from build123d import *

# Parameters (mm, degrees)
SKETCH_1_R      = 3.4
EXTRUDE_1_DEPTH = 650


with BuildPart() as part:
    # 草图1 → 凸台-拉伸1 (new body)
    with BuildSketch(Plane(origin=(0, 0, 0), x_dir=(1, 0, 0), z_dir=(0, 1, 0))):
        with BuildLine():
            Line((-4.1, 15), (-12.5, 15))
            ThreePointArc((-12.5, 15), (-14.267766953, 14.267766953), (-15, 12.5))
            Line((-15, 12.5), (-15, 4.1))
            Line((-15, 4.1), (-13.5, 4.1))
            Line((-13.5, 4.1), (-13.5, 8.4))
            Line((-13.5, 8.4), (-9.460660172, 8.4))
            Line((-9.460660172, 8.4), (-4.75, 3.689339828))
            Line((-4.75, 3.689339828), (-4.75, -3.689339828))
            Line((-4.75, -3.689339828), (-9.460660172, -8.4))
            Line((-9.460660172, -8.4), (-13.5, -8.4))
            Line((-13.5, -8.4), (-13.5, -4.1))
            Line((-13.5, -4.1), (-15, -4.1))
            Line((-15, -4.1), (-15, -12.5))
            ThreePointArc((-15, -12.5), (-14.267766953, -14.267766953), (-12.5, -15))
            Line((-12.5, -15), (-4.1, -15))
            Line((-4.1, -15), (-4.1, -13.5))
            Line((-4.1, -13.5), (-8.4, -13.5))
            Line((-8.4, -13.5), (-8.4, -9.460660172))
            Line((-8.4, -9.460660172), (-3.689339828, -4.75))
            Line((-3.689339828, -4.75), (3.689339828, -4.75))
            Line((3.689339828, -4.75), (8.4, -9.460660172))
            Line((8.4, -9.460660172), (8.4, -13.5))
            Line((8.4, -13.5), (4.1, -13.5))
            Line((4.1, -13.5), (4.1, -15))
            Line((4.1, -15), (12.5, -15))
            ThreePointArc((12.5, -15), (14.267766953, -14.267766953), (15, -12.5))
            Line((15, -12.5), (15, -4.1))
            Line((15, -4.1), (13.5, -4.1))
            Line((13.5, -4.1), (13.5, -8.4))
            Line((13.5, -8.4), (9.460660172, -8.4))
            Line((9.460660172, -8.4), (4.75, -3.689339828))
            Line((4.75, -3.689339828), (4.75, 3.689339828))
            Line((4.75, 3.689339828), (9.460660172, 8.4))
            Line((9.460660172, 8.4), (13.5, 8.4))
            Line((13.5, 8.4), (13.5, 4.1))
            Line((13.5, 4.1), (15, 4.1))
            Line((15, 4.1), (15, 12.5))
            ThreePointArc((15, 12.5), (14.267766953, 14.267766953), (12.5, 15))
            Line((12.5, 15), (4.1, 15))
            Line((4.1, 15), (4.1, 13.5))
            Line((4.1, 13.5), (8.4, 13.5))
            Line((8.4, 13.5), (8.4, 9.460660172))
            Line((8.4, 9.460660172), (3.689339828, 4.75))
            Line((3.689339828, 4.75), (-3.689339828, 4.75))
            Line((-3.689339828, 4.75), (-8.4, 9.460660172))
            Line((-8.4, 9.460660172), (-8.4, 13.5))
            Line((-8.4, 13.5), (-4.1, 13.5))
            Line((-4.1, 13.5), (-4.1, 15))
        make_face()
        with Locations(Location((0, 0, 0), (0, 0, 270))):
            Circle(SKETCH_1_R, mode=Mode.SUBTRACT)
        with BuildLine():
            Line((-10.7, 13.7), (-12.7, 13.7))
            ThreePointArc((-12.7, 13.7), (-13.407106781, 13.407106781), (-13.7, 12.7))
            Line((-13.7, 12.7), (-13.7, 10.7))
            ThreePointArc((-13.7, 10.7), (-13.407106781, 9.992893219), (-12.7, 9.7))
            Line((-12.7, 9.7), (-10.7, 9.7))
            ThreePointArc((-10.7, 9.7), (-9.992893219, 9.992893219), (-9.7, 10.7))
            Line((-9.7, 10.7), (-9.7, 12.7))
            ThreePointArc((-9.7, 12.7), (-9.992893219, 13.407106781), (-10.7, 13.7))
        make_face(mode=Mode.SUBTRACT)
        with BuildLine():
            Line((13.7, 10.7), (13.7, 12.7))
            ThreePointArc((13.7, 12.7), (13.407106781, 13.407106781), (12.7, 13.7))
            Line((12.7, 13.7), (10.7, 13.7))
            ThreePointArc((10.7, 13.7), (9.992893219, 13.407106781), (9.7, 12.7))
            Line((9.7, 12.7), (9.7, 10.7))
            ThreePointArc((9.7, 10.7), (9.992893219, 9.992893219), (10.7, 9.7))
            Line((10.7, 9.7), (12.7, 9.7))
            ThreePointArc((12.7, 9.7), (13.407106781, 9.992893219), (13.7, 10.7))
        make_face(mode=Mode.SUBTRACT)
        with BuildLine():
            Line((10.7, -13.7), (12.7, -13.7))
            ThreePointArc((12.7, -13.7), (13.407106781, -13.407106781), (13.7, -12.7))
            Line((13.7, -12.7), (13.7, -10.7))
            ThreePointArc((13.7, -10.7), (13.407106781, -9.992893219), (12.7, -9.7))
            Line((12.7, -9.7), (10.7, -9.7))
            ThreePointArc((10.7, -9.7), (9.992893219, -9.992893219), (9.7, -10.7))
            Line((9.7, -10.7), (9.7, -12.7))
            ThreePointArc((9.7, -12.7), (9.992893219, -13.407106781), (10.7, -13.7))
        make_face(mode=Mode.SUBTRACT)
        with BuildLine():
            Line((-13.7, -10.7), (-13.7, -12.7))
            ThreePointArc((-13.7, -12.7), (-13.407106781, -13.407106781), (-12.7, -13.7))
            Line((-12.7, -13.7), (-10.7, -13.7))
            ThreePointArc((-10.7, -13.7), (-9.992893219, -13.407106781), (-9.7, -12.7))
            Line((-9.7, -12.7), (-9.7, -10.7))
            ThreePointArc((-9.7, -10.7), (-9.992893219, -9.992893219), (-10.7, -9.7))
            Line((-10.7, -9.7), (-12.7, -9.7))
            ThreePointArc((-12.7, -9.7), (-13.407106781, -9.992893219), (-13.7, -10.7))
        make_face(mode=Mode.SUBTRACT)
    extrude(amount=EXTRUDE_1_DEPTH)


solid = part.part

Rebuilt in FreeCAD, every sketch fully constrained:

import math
import FreeCAD as App
import Part
import Sketcher

V = App.Vector

doc = App.newDocument("Part")
params = doc.addObject("Spreadsheet::Sheet", "Params")
for row, (alias, value) in enumerate([
    ("sketch1_radius", "1 mm"),
    ("sketch1_diameter", "6.8 mm"),
    ("sketch1_radius2", "2.5 mm"),
    ("sketch1_width", "2 mm"),
    ("sketch1_width2", "8.4 mm"),
    ("pad1_length", "650 mm"),
], start=1):
    params.set(f"A{row}", alias)
    params.set(f"B{row}", "=" + value)
    params.setAlias(f"B{row}", alias)

body = doc.addObject("PartDesign::Body", "Body")

# Sketch on XZ plane
sketch1 = doc.addObject("Sketcher::SketchObject", "Sketch")
body.addObject(sketch1)
sketch1.AttachmentSupport = (doc.XZ_Plane, [""])
sketch1.MapMode = "FlatFace"
sketch1.addGeometry(Part.LineSegment(V(-4.1, -15, 0), V(-12.5, -15, 0)), False)
sketch1.addGeometry(Part.ArcOfCircle(Part.Circle(V(-12.5, -12.5, 0), V(0, 0, 1), 2.5), math.radians(180), math.radians(270)), False)
sketch1.addGeometry(Part.LineSegment(V(-15, -12.5, 0), V(-15, -4.1, 0)), False)
sketch1.addGeometry(Part.LineSegment(V(-15, -4.1, 0), V(-13.5, -4.1, 0)), False)
sketch1.addGeometry(Part.LineSegment(V(-13.5, -4.1, 0), V(-13.5, -8.4, 0)), False)
sketch1.addGeometry(Part.LineSegment(V(-13.5, -8.4, 0), V(-9.5, -8.4, 0)), False)
sketch1.addGeometry(Part.LineSegment(V(-9.5, -8.4, 0), V(-4.8, -3.7, 0)), False)
sketch1.addGeometry(Part.LineSegment(V(-4.8, -3.7, 0), V(-4.8, 3.7, 0)), False)
sketch1.addGeometry(Part.LineSegment(V(-4.8, 3.7, 0), V(-9.5, 8.4, 0)), False)
sketch1.addGeometry(Part.LineSegment(V(-9.5, 8.4, 0), V(-13.5, 8.4, 0)), False)
sketch1.addGeometry(Part.LineSegment(V(-13.5, 8.4, 0), V(-13.5, 4.1, 0)), False)
sketch1.addGeometry(Part.LineSegment(V(-13.5, 4.1, 0), V(-15, 4.1, 0)), False)
sketch1.addGeometry(Part.LineSegment(V(-15, 4.1, 0), V(-15, 12.5, 0)), False)
sketch1.addGeometry(Part.ArcOfCircle(Part.Circle(V(-12.5, 12.5, 0), V(0, 0, 1), 2.5), math.radians(90), math.radians(180)), False)
sketch1.addGeometry(Part.LineSegment(V(-12.5, 15, 0), V(-4.1, 15, 0)), False)
sketch1.addGeometry(Part.LineSegment(V(-4.1, 15, 0), V(-4.1, 13.5, 0)), False)
sketch1.addGeometry(Part.LineSegment(V(-4.1, 13.5, 0), V(-8.4, 13.5, 0)), False)
sketch1.addGeometry(Part.LineSegment(V(-8.4, 13.5, 0), V(-8.4, 9.5, 0)), False)
sketch1.addGeometry(Part.LineSegment(V(-8.4, 9.5, 0), V(-3.7, 4.8, 0)), False)
sketch1.addGeometry(Part.LineSegment(V(-3.7, 4.8, 0), V(3.7, 4.8, 0)), False)
sketch1.addGeometry(Part.LineSegment(V(3.7, 4.8, 0), V(8.4, 9.5, 0)), False)
sketch1.addGeometry(Part.LineSegment(V(8.4, 9.5, 0), V(8.4, 13.5, 0)), False)
sketch1.addGeometry(Part.LineSegment(V(8.4, 13.5, 0), V(4.1, 13.5, 0)), False)
sketch1.addGeometry(Part.LineSegment(V(4.1, 13.5, 0), V(4.1, 15, 0)), False)
sketch1.addGeometry(Part.LineSegment(V(4.1, 15, 0), V(12.5, 15, 0)), False)
sketch1.addGeometry(Part.ArcOfCircle(Part.Circle(V(12.5, 12.5, 0), V(0, 0, 1), 2.5), math.radians(0), math.radians(90)), False)
sketch1.addGeometry(Part.LineSegment(V(15, 12.5, 0), V(15, 4.1, 0)), False)
sketch1.addGeometry(Part.LineSegment(V(15, 4.1, 0), V(13.5, 4.1, 0)), False)
sketch1.addGeometry(Part.LineSegment(V(13.5, 4.1, 0), V(13.5, 8.4, 0)), False)
sketch1.addGeometry(Part.LineSegment(V(13.5, 8.4, 0), V(9.5, 8.4, 0)), False)
sketch1.addGeometry(Part.LineSegment(V(9.5, 8.4, 0), V(4.8, 3.7, 0)), False)
sketch1.addGeometry(Part.LineSegment(V(4.8, 3.7, 0), V(4.8, -3.7, 0)), False)
sketch1.addGeometry(Part.LineSegment(V(4.8, -3.7, 0), V(9.5, -8.4, 0)), False)
sketch1.addGeometry(Part.LineSegment(V(9.5, -8.4, 0), V(13.5, -8.4, 0)), False)
sketch1.addGeometry(Part.LineSegment(V(13.5, -8.4, 0), V(13.5, -4.1, 0)), False)
sketch1.addGeometry(Part.LineSegment(V(13.5, -4.1, 0), V(15, -4.1, 0)), False)
sketch1.addGeometry(Part.LineSegment(V(15, -4.1, 0), V(15, -12.5, 0)), False)
sketch1.addGeometry(Part.ArcOfCircle(Part.Circle(V(12.5, -12.5, 0), V(0, 0, 1), 2.5), math.radians(-90), math.radians(0)), False)
sketch1.addGeometry(Part.LineSegment(V(12.5, -15, 0), V(4.1, -15, 0)), False)
sketch1.addGeometry(Part.LineSegment(V(4.1, -15, 0), V(4.1, -13.5, 0)), False)
sketch1.addGeometry(Part.LineSegment(V(4.1, -13.5, 0), V(8.4, -13.5, 0)), False)
sketch1.addGeometry(Part.LineSegment(V(8.4, -13.5, 0), V(8.4, -9.5, 0)), False)
sketch1.addGeometry(Part.LineSegment(V(8.4, -9.5, 0), V(3.7, -4.8, 0)), False)
sketch1.addGeometry(Part.LineSegment(V(3.7, -4.8, 0), V(-3.7, -4.8, 0)), False)
sketch1.addGeometry(Part.LineSegment(V(-3.7, -4.8, 0), V(-8.4, -9.5, 0)), False)
sketch1.addGeometry(Part.LineSegment(V(-8.4, -9.5, 0), V(-8.4, -13.5, 0)), False)
sketch1.addGeometry(Part.LineSegment(V(-8.4, -13.5, 0), V(-4.1, -13.5, 0)), False)
sketch1.addGeometry(Part.LineSegment(V(-4.1, -13.5, 0), V(-4.1, -15, 0)), False)
sketch1.addGeometry(Part.LineSegment(V(-13.7, 12.7, 0), V(-13.7, 10.7, 0)), False)
sketch1.addGeometry(Part.ArcOfCircle(Part.Circle(V(-12.7, 10.7, 0), V(0, 0, 1), 1), math.radians(-180), math.radians(-90)), False)
sketch1.addGeometry(Part.LineSegment(V(-12.7, 9.7, 0), V(-10.7, 9.7, 0)), False)
sketch1.addGeometry(Part.ArcOfCircle(Part.Circle(V(-10.7, 10.7, 0), V(0, 0, 1), 1), math.radians(-90), math.radians(0)), False)
sketch1.addGeometry(Part.LineSegment(V(-9.7, 10.7, 0), V(-9.7, 12.7, 0)), False)
sketch1.addGeometry(Part.ArcOfCircle(Part.Circle(V(-10.7, 12.7, 0), V(0, 0, 1), 1), math.radians(0), math.radians(90)), False)
sketch1.addGeometry(Part.LineSegment(V(-10.7, 13.7, 0), V(-12.7, 13.7, 0)), False)
sketch1.addGeometry(Part.ArcOfCircle(Part.Circle(V(-12.7, 12.7, 0), V(0, 0, 1), 1), math.radians(90), math.radians(180)), False)
sketch1.addGeometry(Part.LineSegment(V(12.7, 13.7, 0), V(10.7, 13.7, 0)), False)
sketch1.addGeometry(Part.ArcOfCircle(Part.Circle(V(10.7, 12.7, 0), V(0, 0, 1), 1), math.radians(90), math.radians(180)), False)
sketch1.addGeometry(Part.LineSegment(V(9.7, 12.7, 0), V(9.7, 10.7, 0)), False)
sketch1.addGeometry(Part.ArcOfCircle(Part.Circle(V(10.7, 10.7, 0), V(0, 0, 1), 1), math.radians(-180), math.radians(-90)), False)
sketch1.addGeometry(Part.LineSegment(V(10.7, 9.7, 0), V(12.7, 9.7, 0)), False)
sketch1.addGeometry(Part.ArcOfCircle(Part.Circle(V(12.7, 10.7, 0), V(0, 0, 1), 1), math.radians(-90), math.radians(0)), False)
sketch1.addGeometry(Part.LineSegment(V(13.7, 10.7, 0), V(13.7, 12.7, 0)), False)
sketch1.addGeometry(Part.ArcOfCircle(Part.Circle(V(12.7, 12.7, 0), V(0, 0, 1), 1), math.radians(0), math.radians(90)), False)
sketch1.addGeometry(Part.LineSegment(V(-12.7, -13.7, 0), V(-10.7, -13.7, 0)), False)
sketch1.addGeometry(Part.ArcOfCircle(Part.Circle(V(-10.7, -12.7, 0), V(0, 0, 1), 1), math.radians(-90), math.radians(0)), False)
sketch1.addGeometry(Part.LineSegment(V(-9.7, -12.7, 0), V(-9.7, -10.7, 0)), False)
sketch1.addGeometry(Part.ArcOfCircle(Part.Circle(V(-10.7, -10.7, 0), V(0, 0, 1), 1), math.radians(0), math.radians(90)), False)
sketch1.addGeometry(Part.LineSegment(V(-10.7, -9.7, 0), V(-12.7, -9.7, 0)), False)
sketch1.addGeometry(Part.ArcOfCircle(Part.Circle(V(-12.7, -10.7, 0), V(0, 0, 1), 1), math.radians(90), math.radians(180)), False)
sketch1.addGeometry(Part.LineSegment(V(-13.7, -10.7, 0), V(-13.7, -12.7, 0)), False)
sketch1.addGeometry(Part.ArcOfCircle(Part.Circle(V(-12.7, -12.7, 0), V(0, 0, 1), 1), math.radians(-180), math.radians(-90)), False)
sketch1.addGeometry(Part.Circle(V(0, 0, 0), V(0, 0, 1), 3.4), False)
sketch1.addGeometry(Part.LineSegment(V(13.7, -12.7, 0), V(13.7, -10.7, 0)), False)
sketch1.addGeometry(Part.ArcOfCircle(Part.Circle(V(12.7, -10.7, 0), V(0, 0, 1), 1), math.radians(0), math.radians(90)), False)
sketch1.addGeometry(Part.LineSegment(V(12.7, -9.7, 0), V(10.7, -9.7, 0)), False)
sketch1.addGeometry(Part.ArcOfCircle(Part.Circle(V(10.7, -10.7, 0), V(0, 0, 1), 1), math.radians(90), math.radians(180)), False)
sketch1.addGeometry(Part.LineSegment(V(9.7, -10.7, 0), V(9.7, -12.7, 0)), False)
sketch1.addGeometry(Part.ArcOfCircle(Part.Circle(V(10.7, -12.7, 0), V(0, 0, 1), 1), math.radians(-180), math.radians(-90)), False)
sketch1.addGeometry(Part.LineSegment(V(10.7, -13.7, 0), V(12.7, -13.7, 0)), False)
sketch1.addGeometry(Part.ArcOfCircle(Part.Circle(V(12.7, -12.7, 0), V(0, 0, 1), 1), math.radians(-90), math.radians(0)), False)
sketch1.addConstraint(Sketcher.Constraint("Tangent", 0, 2, 1, 2))
sketch1.addConstraint(Sketcher.Constraint("Tangent", 1, 1, 2, 1))
sketch1.addConstraint(Sketcher.Constraint("Coincident", 2, 2, 3, 1))
sketch1.addConstraint(Sketcher.Constraint("Coincident", 3, 2, 4, 1))
sketch1.addConstraint(Sketcher.Constraint("Coincident", 4, 2, 5, 1))
sketch1.addConstraint(Sketcher.Constraint("Coincident", 5, 2, 6, 1))
sketch1.addConstraint(Sketcher.Constraint("Coincident", 6, 2, 7, 1))
sketch1.addConstraint(Sketcher.Constraint("Coincident", 7, 2, 8, 1))
sketch1.addConstraint(Sketcher.Constraint("Coincident", 8, 2, 9, 1))
sketch1.addConstraint(Sketcher.Constraint("Coincident", 9, 2, 10, 1))
sketch1.addConstraint(Sketcher.Constraint("Coincident", 10, 2, 11, 1))
sketch1.addConstraint(Sketcher.Constraint("Coincident", 11, 2, 12, 1))
sketch1.addConstraint(Sketcher.Constraint("Tangent", 12, 2, 13, 2))
sketch1.addConstraint(Sketcher.Constraint("Tangent", 13, 1, 14, 1))
sketch1.addConstraint(Sketcher.Constraint("Coincident", 14, 2, 15, 1))
sketch1.addConstraint(Sketcher.Constraint("Coincident", 15, 2, 16, 1))
sketch1.addConstraint(Sketcher.Constraint("Coincident", 16, 2, 17, 1))
sketch1.addConstraint(Sketcher.Constraint("Coincident", 17, 2, 18, 1))
sketch1.addConstraint(Sketcher.Constraint("Coincident", 18, 2, 19, 1))
sketch1.addConstraint(Sketcher.Constraint("Coincident", 19, 2, 20, 1))
sketch1.addConstraint(Sketcher.Constraint("Coincident", 20, 2, 21, 1))
sketch1.addConstraint(Sketcher.Constraint("Coincident", 21, 2, 22, 1))
sketch1.addConstraint(Sketcher.Constraint("Coincident", 22, 2, 23, 1))
sketch1.addConstraint(Sketcher.Constraint("Coincident", 23, 2, 24, 1))
sketch1.addConstraint(Sketcher.Constraint("Tangent", 24, 2, 25, 2))
sketch1.addConstraint(Sketcher.Constraint("Tangent", 25, 1, 26, 1))
sketch1.addConstraint(Sketcher.Constraint("Coincident", 26, 2, 27, 1))
sketch1.addConstraint(Sketcher.Constraint("Coincident", 27, 2, 28, 1))
sketch1.addConstraint(Sketcher.Constraint("Coincident", 28, 2, 29, 1))
sketch1.addConstraint(Sketcher.Constraint("Coincident", 29, 2, 30, 1))
sketch1.addConstraint(Sketcher.Constraint("Coincident", 30, 2, 31, 1))
sketch1.addConstraint(Sketcher.Constraint("Coincident", 31, 2, 32, 1))
sketch1.addConstraint(Sketcher.Constraint("Coincident", 32, 2, 33, 1))
sketch1.addConstraint(Sketcher.Constraint("Coincident", 33, 2, 34, 1))
sketch1.addConstraint(Sketcher.Constraint("Coincident", 34, 2, 35, 1))
sketch1.addConstraint(Sketcher.Constraint("Coincident", 35, 2, 36, 1))
sketch1.addConstraint(Sketcher.Constraint("Tangent", 36, 2, 37, 2))
sketch1.addConstraint(Sketcher.Constraint("Tangent", 37, 1, 38, 1))
sketch1.addConstraint(Sketcher.Constraint("Coincident", 38, 2, 39, 1))
sketch1.addConstraint(Sketcher.Constraint("Coincident", 39, 2, 40, 1))
sketch1.addConstraint(Sketcher.Constraint("Coincident", 40, 2, 41, 1))
sketch1.addConstraint(Sketcher.Constraint("Coincident", 41, 2, 42, 1))
sketch1.addConstraint(Sketcher.Constraint("Coincident", 42, 2, 43, 1))
sketch1.addConstraint(Sketcher.Constraint("Coincident", 43, 2, 44, 1))
sketch1.addConstraint(Sketcher.Constraint("Coincident", 44, 2, 45, 1))
sketch1.addConstraint(Sketcher.Constraint("Coincident", 45, 2, 46, 1))
sketch1.addConstraint(Sketcher.Constraint("Coincident", 46, 2, 47, 1))
sketch1.addConstraint(Sketcher.Constraint("Coincident", 47, 2, 0, 1))
sketch1.addConstraint(Sketcher.Constraint("Tangent", 48, 2, 49, 1))
sketch1.addConstraint(Sketcher.Constraint("Tangent", 49, 2, 50, 1))
sketch1.addConstraint(Sketcher.Constraint("Tangent", 50, 2, 51, 1))
sketch1.addConstraint(Sketcher.Constraint("Tangent", 51, 2, 52, 1))
sketch1.addConstraint(Sketcher.Constraint("Tangent", 52, 2, 53, 1))
sketch1.addConstraint(Sketcher.Constraint("Tangent", 53, 2, 54, 1))
sketch1.addConstraint(Sketcher.Constraint("Tangent", 54, 2, 55, 1))
sketch1.addConstraint(Sketcher.Constraint("Tangent", 55, 2, 48, 1))
sketch1.addConstraint(Sketcher.Constraint("Tangent", 56, 2, 57, 1))
sketch1.addConstraint(Sketcher.Constraint("Tangent", 57, 2, 58, 1))
sketch1.addConstraint(Sketcher.Constraint("Tangent", 58, 2, 59, 1))
sketch1.addConstraint(Sketcher.Constraint("Tangent", 59, 2, 60, 1))
sketch1.addConstraint(Sketcher.Constraint("Tangent", 60, 2, 61, 1))
sketch1.addConstraint(Sketcher.Constraint("Tangent", 61, 2, 62, 1))
sketch1.addConstraint(Sketcher.Constraint("Tangent", 62, 2, 63, 1))
sketch1.addConstraint(Sketcher.Constraint("Tangent", 63, 2, 56, 1))
sketch1.addConstraint(Sketcher.Constraint("Tangent", 64, 2, 65, 1))
sketch1.addConstraint(Sketcher.Constraint("Tangent", 65, 2, 66, 1))
sketch1.addConstraint(Sketcher.Constraint("Tangent", 66, 2, 67, 1))
sketch1.addConstraint(Sketcher.Constraint("Tangent", 67, 2, 68, 1))
sketch1.addConstraint(Sketcher.Constraint("Tangent", 68, 2, 69, 1))
sketch1.addConstraint(Sketcher.Constraint("Tangent", 69, 2, 70, 1))
sketch1.addConstraint(Sketcher.Constraint("Tangent", 70, 2, 71, 1))
sketch1.addConstraint(Sketcher.Constraint("Tangent", 71, 2, 64, 1))
sketch1.addConstraint(Sketcher.Constraint("Tangent", 73, 2, 74, 1))
sketch1.addConstraint(Sketcher.Constraint("Tangent", 74, 2, 75, 1))
sketch1.addConstraint(Sketcher.Constraint("Tangent", 75, 2, 76, 1))
sketch1.addConstraint(Sketcher.Constraint("Tangent", 76, 2, 77, 1))
sketch1.addConstraint(Sketcher.Constraint("Tangent", 77, 2, 78, 1))
sketch1.addConstraint(Sketcher.Constraint("Tangent", 78, 2, 79, 1))
sketch1.addConstraint(Sketcher.Constraint("Tangent", 79, 2, 80, 1))
sketch1.addConstraint(Sketcher.Constraint("Tangent", 80, 2, 73, 1))
sketch1.addConstraint(Sketcher.Constraint("Horizontal", 0))
sketch1.addConstraint(Sketcher.Constraint("Vertical", 2))
sketch1.addConstraint(Sketcher.Constraint("Horizontal", 3))
sketch1.addConstraint(Sketcher.Constraint("Vertical", 4))
sketch1.addConstraint(Sketcher.Constraint("Horizontal", 5))
sketch1.addConstraint(Sketcher.Constraint("Vertical", 7))
sketch1.addConstraint(Sketcher.Constraint("Horizontal", 9))
sketch1.addConstraint(Sketcher.Constraint("Vertical", 10))
sketch1.addConstraint(Sketcher.Constraint("Horizontal", 11))
sketch1.addConstraint(Sketcher.Constraint("Vertical", 12))
sketch1.addConstraint(Sketcher.Constraint("Horizontal", 14))
sketch1.addConstraint(Sketcher.Constraint("Vertical", 15))
sketch1.addConstraint(Sketcher.Constraint("Horizontal", 16))
sketch1.addConstraint(Sketcher.Constraint("Vertical", 17))
sketch1.addConstraint(Sketcher.Constraint("Horizontal", 19))
sketch1.addConstraint(Sketcher.Constraint("Vertical", 21))
sketch1.addConstraint(Sketcher.Constraint("Horizontal", 22))
sketch1.addConstraint(Sketcher.Constraint("Vertical", 23))
sketch1.addConstraint(Sketcher.Constraint("Horizontal", 24))
sketch1.addConstraint(Sketcher.Constraint("Vertical", 26))
sketch1.addConstraint(Sketcher.Constraint("Horizontal", 27))
sketch1.addConstraint(Sketcher.Constraint("Vertical", 28))
sketch1.addConstraint(Sketcher.Constraint("Horizontal", 29))
sketch1.addConstraint(Sketcher.Constraint("Vertical", 31))
sketch1.addConstraint(Sketcher.Constraint("Horizontal", 33))
sketch1.addConstraint(Sketcher.Constraint("Vertical", 34))
sketch1.addConstraint(Sketcher.Constraint("Horizontal", 35))
sketch1.addConstraint(Sketcher.Constraint("Vertical", 36))
sketch1.addConstraint(Sketcher.Constraint("Horizontal", 38))
sketch1.addConstraint(Sketcher.Constraint("Vertical", 39))
sketch1.addConstraint(Sketcher.Constraint("Horizontal", 40))
sketch1.addConstraint(Sketcher.Constraint("Vertical", 41))
sketch1.addConstraint(Sketcher.Constraint("Horizontal", 43))
sketch1.addConstraint(Sketcher.Constraint("Vertical", 45))
sketch1.addConstraint(Sketcher.Constraint("Horizontal", 46))
sketch1.addConstraint(Sketcher.Constraint("Vertical", 47))
sketch1.addConstraint(Sketcher.Constraint("Vertical", 48))
sketch1.addConstraint(Sketcher.Constraint("Horizontal", 50))
sketch1.addConstraint(Sketcher.Constraint("Vertical", 52))
sketch1.addConstraint(Sketcher.Constraint("Horizontal", 54))
sketch1.addConstraint(Sketcher.Constraint("Horizontal", 56))
sketch1.addConstraint(Sketcher.Constraint("Vertical", 58))
sketch1.addConstraint(Sketcher.Constraint("Horizontal", 60))
sketch1.addConstraint(Sketcher.Constraint("Vertical", 62))
sketch1.addConstraint(Sketcher.Constraint("Horizontal", 64))
sketch1.addConstraint(Sketcher.Constraint("Vertical", 66))
sketch1.addConstraint(Sketcher.Constraint("Horizontal", 68))
sketch1.addConstraint(Sketcher.Constraint("Vertical", 70))
sketch1.addConstraint(Sketcher.Constraint("Vertical", 73))
sketch1.addConstraint(Sketcher.Constraint("Horizontal", 75))
sketch1.addConstraint(Sketcher.Constraint("Vertical", 77))
sketch1.addConstraint(Sketcher.Constraint("Horizontal", 79))
sketch1.addConstraint(Sketcher.Constraint("Coincident", 72, 3, -1, 1))
sketch1.addConstraint(Sketcher.Constraint("Equal", 1, 13))
sketch1.addConstraint(Sketcher.Constraint("Equal", 13, 25))
sketch1.addConstraint(Sketcher.Constraint("Equal", 25, 37))
sketch1.addConstraint(Sketcher.Constraint("Equal", 49, 51))
sketch1.addConstraint(Sketcher.Constraint("Equal", 51, 53))
sketch1.addConstraint(Sketcher.Constraint("Equal", 53, 55))
sketch1.addConstraint(Sketcher.Constraint("Equal", 55, 57))
sketch1.addConstraint(Sketcher.Constraint("Equal", 57, 59))
sketch1.addConstraint(Sketcher.Constraint("Equal", 59, 61))
sketch1.addConstraint(Sketcher.Constraint("Equal", 61, 63))
sketch1.addConstraint(Sketcher.Constraint("Equal", 63, 65))
sketch1.addConstraint(Sketcher.Constraint("Equal", 65, 67))
sketch1.addConstraint(Sketcher.Constraint("Equal", 67, 69))
sketch1.addConstraint(Sketcher.Constraint("Equal", 69, 71))
sketch1.addConstraint(Sketcher.Constraint("Equal", 71, 74))
sketch1.addConstraint(Sketcher.Constraint("Equal", 74, 76))
sketch1.addConstraint(Sketcher.Constraint("Equal", 76, 78))
sketch1.addConstraint(Sketcher.Constraint("Equal", 78, 80))
sketch1.addConstraint(Sketcher.Constraint("Symmetric", 1, 3, 25, 3, -1, 1))
sketch1.addConstraint(Sketcher.Constraint("Symmetric", 13, 3, 37, 3, -1, 1))
sketch1.addConstraint(Sketcher.Constraint("Symmetric", 57, 3, 65, 3, -1, 1))
sketch1.addConstraint(Sketcher.Constraint("Symmetric", 61, 3, 69, 3, -1, 1))
sketch1.addConstraint(Sketcher.Constraint("Symmetric", 49, 3, 74, 3, -1, 1))
sketch1.addConstraint(Sketcher.Constraint("Symmetric", 53, 3, 78, 3, -1, 1))
sketch1.addConstraint(Sketcher.Constraint("Symmetric", 3, 2, 27, 2, -1, 1))
sketch1.addConstraint(Sketcher.Constraint("Symmetric", 5, 2, 29, 2, -1, 1))
sketch1.addConstraint(Sketcher.Constraint("Symmetric", 6, 2, 30, 2, -1, 1))
sketch1.addConstraint(Sketcher.Constraint("Symmetric", 8, 2, 32, 2, -1, 1))
sketch1.addConstraint(Sketcher.Constraint("Symmetric", 10, 2, 34, 2, -1, 1))
sketch1.addConstraint(Sketcher.Constraint("Symmetric", 15, 2, 39, 2, -1, 1))
sketch1.addConstraint(Sketcher.Constraint("Symmetric", 17, 2, 41, 2, -1, 1))
sketch1.addConstraint(Sketcher.Constraint("Symmetric", 18, 2, 42, 2, -1, 1))
sketch1.addConstraint(Sketcher.Constraint("Symmetric", 20, 2, 44, 2, -1, 1))
sketch1.addConstraint(Sketcher.Constraint("Symmetric", 22, 2, 46, 2, -1, 1))
sketch1.addConstraint(Sketcher.Constraint("Symmetric", 13, 3, 25, 3, -2))
sketch1.addConstraint(Sketcher.Constraint("Symmetric", 53, 3, 57, 3, -2))
sketch1.addConstraint(Sketcher.Constraint("Symmetric", 49, 3, 61, 3, -2))
sketch1.addConstraint(Sketcher.Constraint("Symmetric", 17, 2, 20, 2, -2))
sketch1.addConstraint(Sketcher.Constraint("Symmetric", 15, 2, 22, 2, -2))
sketch1.addConstraint(Sketcher.Constraint("Symmetric", 10, 2, 27, 2, -2))
sketch1.addConstraint(Sketcher.Constraint("Symmetric", 8, 2, 29, 2, -2))
sketch1.addConstraint(Sketcher.Constraint("Perpendicular", 6, 8))
sketch1.addConstraint(Sketcher.Constraint("Parallel", 8, 18))
sketch1.addConstraint(Sketcher.Constraint("Perpendicular", 18, 20))
sketch1.addConstraint(Sketcher.Constraint("Perpendicular", 30, 32))
sketch1.addConstraint(Sketcher.Constraint("Perpendicular", 42, 44))
sketch1.addConstraint(Sketcher.Constraint("Horizontal", 7, 2, 30, 2))
sketch1.addConstraint(Sketcher.Constraint("Equal", 38, 2))
sketch1.addConstraint(Sketcher.Constraint("Equal", 46, 4))
sketch1.addConstraint(Sketcher.Constraint("Equal", 43, 7))
sketch1.addConstraint(Sketcher.Constraint("Equal", 35, 15))
sketch1.addConstraint(Sketcher.Constraint("Equal", 33, 17))
sketch1.addConstraint(Sketcher.Constraint("Equal", 79, 48))
sketch1.addConstraint(Sketcher.Constraint("Equal", 8, 18))
sketch1.addConstraint(Sketcher.Constraint("Radius", 49, 1.0))
sketch1.addConstraint(Sketcher.Constraint("Diameter", 72, 6.8))
sketch1.addConstraint(Sketcher.Constraint("Radius", 1, 2.5))
sketch1.addConstraint(Sketcher.Constraint("DistanceX", 50, 1, 50, 2, 2.0))
sketch1.addConstraint(Sketcher.Constraint("DistanceX", 0, 2, 0, 1, 8.4))
sketch1.addConstraint(Sketcher.Constraint("DistanceX", 3, 1, 3, 2, 1.5))
sketch1.addConstraint(Sketcher.Constraint("DistanceX", 16, 2, 16, 1, 4.3))
sketch1.addConstraint(Sketcher.Constraint("DistanceY", 0, 2, -1, 1, 15.0))
sketch1.addConstraint(Sketcher.Constraint("DistanceX", 49, 3, -1, 1, 12.7))
sketch1.addConstraint(Sketcher.Constraint("DistanceY", -1, 1, 49, 3, 10.7))
sketch1.addConstraint(Sketcher.Constraint("DistanceX", 6, 2, -1, 1, 4.75))
sketch1.addConstraint(Sketcher.Constraint("DistanceX", 5, 1, 5, 2, 4.03934))
sketch1.setExpression("Constraints[187]", "Params.sketch1_radius")
sketch1.setExpression("Constraints[188]", "Params.sketch1_diameter")
sketch1.setExpression("Constraints[189]", "Params.sketch1_radius2")
sketch1.setExpression("Constraints[190]", "Params.sketch1_width")
sketch1.setExpression("Constraints[191]", "Params.sketch1_width2")
pad1 = doc.addObject("PartDesign::Pad", "Pad")
body.addObject(pad1)
pad1.Profile = sketch1
pad1.setExpression("Length", "Params.pad1_length")
pad1.Reversed = True

doc.recompute()
